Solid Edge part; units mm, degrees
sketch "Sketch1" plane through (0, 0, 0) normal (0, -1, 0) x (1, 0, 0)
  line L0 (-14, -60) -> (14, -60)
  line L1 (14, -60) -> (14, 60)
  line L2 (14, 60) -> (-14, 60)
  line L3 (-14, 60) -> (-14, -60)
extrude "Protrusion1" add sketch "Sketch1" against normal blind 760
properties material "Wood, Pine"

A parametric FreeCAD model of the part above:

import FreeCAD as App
import Part
import Sketcher
from FreeCAD import Vector
Q = App.Units.Quantity


def add_polygon(sketch, points):
    """Adds a closed chain of lines whose ends are joined by coincident constraints."""
    first, n = sketch.GeometryCount, len(points)
    for a, b in zip(points, points[1:] + points[:1]):
        sketch.addGeometry(Part.LineSegment(App.Vector(*a, 0), App.Vector(*b, 0)), False)
    for i in range(n):
        sketch.addConstraint(Sketcher.Constraint("Coincident", first + i, 2, first + (i + 1) % n, 1))

doc = App.newDocument("Part")
body = doc.addObject("PartDesign::Body", "Body")

sketch1 = doc.addObject("Sketcher::SketchObject", "Sketch")
body.addObject(sketch1)
sketch1.AttachmentSupport = (doc.XZ_Plane, [""])
sketch1.MapMode = "FlatFace"
add_polygon(sketch1, [(-14, 60), (-14, -60), (14, -60), (14, 60)])
sketch1.addConstraint(Sketcher.Constraint("Vertical", 0))
sketch1.addConstraint(Sketcher.Constraint("Horizontal", 1))
sketch1.addConstraint(Sketcher.Constraint("Vertical", 2))
sketch1.addConstraint(Sketcher.Constraint("Horizontal", 3))
sketch1.addConstraint(Sketcher.Constraint("Symmetric", 0, 2, 2, 2, -1, 1))
sketch1.addConstraint(Sketcher.Constraint("DistanceX", 1, 1, 1, 2, Q("28 mm")))
sketch1.addConstraint(Sketcher.Constraint("DistanceY", 0, 2, 0, 1, Q("120 mm")))
pad1 = doc.addObject("PartDesign::Pad", "Pad")
body.addObject(pad1)
pad1.Profile = sketch1
pad1.Length = 760
pad1.Reversed = True

doc.recompute()
